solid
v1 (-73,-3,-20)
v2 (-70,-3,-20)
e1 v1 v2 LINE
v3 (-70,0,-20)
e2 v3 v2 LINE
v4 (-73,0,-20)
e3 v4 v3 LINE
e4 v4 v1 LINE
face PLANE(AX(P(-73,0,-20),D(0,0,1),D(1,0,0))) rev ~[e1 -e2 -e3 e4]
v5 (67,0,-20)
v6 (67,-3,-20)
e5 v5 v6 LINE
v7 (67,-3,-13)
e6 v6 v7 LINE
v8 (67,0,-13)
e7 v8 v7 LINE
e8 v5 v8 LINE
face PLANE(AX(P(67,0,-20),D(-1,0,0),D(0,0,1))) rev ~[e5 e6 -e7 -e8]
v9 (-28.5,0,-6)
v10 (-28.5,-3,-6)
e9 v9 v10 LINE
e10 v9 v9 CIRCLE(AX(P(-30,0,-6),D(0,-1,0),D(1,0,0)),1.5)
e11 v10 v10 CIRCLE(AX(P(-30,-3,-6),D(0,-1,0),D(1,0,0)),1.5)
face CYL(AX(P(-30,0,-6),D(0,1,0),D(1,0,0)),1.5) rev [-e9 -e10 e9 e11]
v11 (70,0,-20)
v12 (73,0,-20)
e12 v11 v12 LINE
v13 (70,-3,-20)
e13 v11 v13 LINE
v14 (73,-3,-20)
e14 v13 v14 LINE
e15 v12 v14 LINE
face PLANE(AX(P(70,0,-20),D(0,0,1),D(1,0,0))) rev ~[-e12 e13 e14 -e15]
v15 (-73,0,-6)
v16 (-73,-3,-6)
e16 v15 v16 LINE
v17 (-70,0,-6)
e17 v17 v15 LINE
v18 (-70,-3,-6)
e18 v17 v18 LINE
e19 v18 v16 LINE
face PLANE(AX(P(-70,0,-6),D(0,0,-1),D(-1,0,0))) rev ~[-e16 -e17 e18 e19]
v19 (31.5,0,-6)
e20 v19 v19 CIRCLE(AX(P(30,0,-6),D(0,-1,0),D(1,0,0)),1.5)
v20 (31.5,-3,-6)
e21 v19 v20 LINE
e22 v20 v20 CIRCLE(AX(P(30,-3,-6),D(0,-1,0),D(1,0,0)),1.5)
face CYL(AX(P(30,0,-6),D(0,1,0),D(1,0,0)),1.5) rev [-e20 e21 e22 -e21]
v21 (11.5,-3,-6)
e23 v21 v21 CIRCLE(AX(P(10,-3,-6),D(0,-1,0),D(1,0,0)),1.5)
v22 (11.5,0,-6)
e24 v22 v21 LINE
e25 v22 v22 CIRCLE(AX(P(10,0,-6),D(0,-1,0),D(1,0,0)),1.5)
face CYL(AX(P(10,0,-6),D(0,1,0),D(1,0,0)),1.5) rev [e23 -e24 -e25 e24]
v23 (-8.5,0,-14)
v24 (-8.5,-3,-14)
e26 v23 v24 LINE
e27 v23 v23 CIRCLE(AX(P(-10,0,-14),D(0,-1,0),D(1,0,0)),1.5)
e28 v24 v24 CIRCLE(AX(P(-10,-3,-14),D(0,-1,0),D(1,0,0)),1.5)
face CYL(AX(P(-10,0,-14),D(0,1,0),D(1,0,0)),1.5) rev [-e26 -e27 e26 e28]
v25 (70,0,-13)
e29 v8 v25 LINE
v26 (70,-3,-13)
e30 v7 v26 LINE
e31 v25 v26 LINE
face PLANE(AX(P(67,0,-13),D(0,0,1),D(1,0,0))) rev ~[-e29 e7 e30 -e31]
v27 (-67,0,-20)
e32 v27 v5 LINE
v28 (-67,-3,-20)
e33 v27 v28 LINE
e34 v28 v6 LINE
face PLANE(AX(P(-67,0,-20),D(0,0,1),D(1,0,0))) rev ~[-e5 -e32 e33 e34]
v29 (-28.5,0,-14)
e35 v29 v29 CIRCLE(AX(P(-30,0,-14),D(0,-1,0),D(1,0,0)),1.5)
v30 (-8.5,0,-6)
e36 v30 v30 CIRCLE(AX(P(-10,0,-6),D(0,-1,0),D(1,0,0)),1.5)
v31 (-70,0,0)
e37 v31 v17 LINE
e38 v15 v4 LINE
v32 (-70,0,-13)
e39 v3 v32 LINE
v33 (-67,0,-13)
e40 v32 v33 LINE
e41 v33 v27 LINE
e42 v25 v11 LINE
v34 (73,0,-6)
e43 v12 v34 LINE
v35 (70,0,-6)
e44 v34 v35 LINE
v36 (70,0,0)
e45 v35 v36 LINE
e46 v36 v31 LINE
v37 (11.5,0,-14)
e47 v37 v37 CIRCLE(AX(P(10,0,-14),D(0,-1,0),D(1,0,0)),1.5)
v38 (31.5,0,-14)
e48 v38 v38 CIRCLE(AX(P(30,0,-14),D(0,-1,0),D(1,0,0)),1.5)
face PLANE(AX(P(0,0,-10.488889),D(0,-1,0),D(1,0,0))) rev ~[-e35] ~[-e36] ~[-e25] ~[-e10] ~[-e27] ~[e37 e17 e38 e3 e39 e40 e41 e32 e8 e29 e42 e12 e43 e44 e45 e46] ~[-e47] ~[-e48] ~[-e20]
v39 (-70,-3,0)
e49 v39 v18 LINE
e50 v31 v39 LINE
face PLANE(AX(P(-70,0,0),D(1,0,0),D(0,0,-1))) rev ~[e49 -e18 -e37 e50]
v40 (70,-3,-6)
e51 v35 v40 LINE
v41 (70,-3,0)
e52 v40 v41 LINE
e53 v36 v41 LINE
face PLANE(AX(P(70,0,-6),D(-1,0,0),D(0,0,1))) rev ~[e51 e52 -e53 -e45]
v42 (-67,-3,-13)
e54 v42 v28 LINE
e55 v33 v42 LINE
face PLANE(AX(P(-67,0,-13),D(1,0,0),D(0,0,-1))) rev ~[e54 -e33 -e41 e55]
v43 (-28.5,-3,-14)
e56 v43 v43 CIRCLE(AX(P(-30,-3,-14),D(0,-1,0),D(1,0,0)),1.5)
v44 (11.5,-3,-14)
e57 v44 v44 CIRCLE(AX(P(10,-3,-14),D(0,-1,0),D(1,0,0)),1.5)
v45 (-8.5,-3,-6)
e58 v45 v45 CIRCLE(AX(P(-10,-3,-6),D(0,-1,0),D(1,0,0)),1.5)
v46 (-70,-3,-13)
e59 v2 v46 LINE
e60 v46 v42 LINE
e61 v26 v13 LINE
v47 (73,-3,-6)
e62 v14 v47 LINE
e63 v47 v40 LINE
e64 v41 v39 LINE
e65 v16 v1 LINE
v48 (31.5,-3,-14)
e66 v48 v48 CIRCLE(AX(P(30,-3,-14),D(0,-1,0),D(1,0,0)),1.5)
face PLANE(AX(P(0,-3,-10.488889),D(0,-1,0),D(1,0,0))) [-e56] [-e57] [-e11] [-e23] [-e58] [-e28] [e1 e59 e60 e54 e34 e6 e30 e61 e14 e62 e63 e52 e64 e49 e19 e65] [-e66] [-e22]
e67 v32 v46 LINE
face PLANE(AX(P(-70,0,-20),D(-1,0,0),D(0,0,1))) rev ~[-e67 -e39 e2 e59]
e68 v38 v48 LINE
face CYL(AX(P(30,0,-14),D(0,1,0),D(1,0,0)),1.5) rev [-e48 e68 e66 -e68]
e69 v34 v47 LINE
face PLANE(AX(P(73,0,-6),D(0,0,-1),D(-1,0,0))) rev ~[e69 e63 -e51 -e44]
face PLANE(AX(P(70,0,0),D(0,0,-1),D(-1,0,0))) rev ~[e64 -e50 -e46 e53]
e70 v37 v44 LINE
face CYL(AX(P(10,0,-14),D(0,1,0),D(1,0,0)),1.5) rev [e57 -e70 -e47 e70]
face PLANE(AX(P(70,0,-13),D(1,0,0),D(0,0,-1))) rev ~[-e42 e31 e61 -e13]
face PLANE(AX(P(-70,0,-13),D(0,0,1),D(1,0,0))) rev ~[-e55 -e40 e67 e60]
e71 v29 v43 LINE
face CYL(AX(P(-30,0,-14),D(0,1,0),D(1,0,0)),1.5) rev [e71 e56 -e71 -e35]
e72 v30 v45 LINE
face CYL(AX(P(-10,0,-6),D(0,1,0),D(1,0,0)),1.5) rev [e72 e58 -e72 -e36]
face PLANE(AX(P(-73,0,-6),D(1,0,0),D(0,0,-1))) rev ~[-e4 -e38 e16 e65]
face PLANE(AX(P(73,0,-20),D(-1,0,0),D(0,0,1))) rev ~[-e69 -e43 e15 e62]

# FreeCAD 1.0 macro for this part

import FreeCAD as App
import Part
import Sketcher

V = App.Vector

doc = App.newDocument("Part")
params = doc.addObject("Spreadsheet::Sheet", "Params")
for row, (alias, value) in enumerate([
    ("sketch1_diameter", "3 mm"),
    ("sketch1_width", "140 mm"),
    ("sketch1_width2", "3 mm"),
    ("sketch1_height", "6 mm"),
    ("sketch1_height2", "14 mm"),
    ("pad1_length", "3 mm"),
], start=1):
    params.set(f"A{row}", alias)
    params.set(f"B{row}", "=" + value)
    params.setAlias(f"B{row}", alias)

body = doc.addObject("PartDesign::Body", "Body")

# Sketch on XZ plane
sketch1 = body.newObject("Sketcher::SketchObject", "Sketch")
sketch1.AttachmentSupport = (doc.getObject("XZ_Plane"), [""])
sketch1.MapMode = "FlatFace"
sketch1.addGeometry(Part.LineSegment(V(70, 0, 0), V(-70, 0, 0)), False)
sketch1.addGeometry(Part.LineSegment(V(-70, 0, 0), V(-70, -6, 0)), False)
sketch1.addGeometry(Part.LineSegment(V(-70, -6, 0), V(-73, -6, 0)), False)
sketch1.addGeometry(Part.LineSegment(V(-73, -6, 0), V(-73, -20, 0)), False)
sketch1.addGeometry(Part.LineSegment(V(-73, -20, 0), V(-70, -20, 0)), False)
sketch1.addGeometry(Part.LineSegment(V(-70, -20, 0), V(-70, -13, 0)), False)
sketch1.addGeometry(Part.LineSegment(V(-70, -13, 0), V(-67, -13, 0)), False)
sketch1.addGeometry(Part.LineSegment(V(-67, -13, 0), V(-67, -20, 0)), False)
sketch1.addGeometry(Part.LineSegment(V(-67, -20, 0), V(67, -20, 0)), False)
sketch1.addGeometry(Part.LineSegment(V(67, -20, 0), V(67, -13, 0)), False)
sketch1.addGeometry(Part.LineSegment(V(67, -13, 0), V(70, -13, 0)), False)
sketch1.addGeometry(Part.LineSegment(V(70, -13, 0), V(70, -20, 0)), False)
sketch1.addGeometry(Part.LineSegment(V(70, -20, 0), V(73, -20, 0)), False)
sketch1.addGeometry(Part.LineSegment(V(73, -20, 0), V(73, -6, 0)), False)
sketch1.addGeometry(Part.LineSegment(V(73, -6, 0), V(70, -6, 0)), False)
sketch1.addGeometry(Part.LineSegment(V(70, -6, 0), V(70, 0, 0)), False)
sketch1.addGeometry(Part.Circle(V(-30, -14, 0), V(0, 0, 1), 1.5), False)
sketch1.addGeometry(Part.Circle(V(-10, -14, 0), V(0, 0, 1), 1.5), False)
sketch1.addGeometry(Part.Circle(V(10, -14, 0), V(0, 0, 1), 1.5), False)
sketch1.addGeometry(Part.Circle(V(30, -14, 0), V(0, 0, 1), 1.5), False)
sketch1.addGeometry(Part.Circle(V(-30, -6, 0), V(0, 0, 1), 1.5), False)
sketch1.addGeometry(Part.Circle(V(-10, -6, 0), V(0, 0, 1), 1.5), False)
sketch1.addGeometry(Part.Circle(V(10, -6, 0), V(0, 0, 1), 1.5), False)
sketch1.addGeometry(Part.Circle(V(30, -6, 0), V(0, 0, 1), 1.5), False)
sketch1.addConstraint(Sketcher.Constraint("Coincident", 0, 2, 1, 1))
sketch1.addConstraint(Sketcher.Constraint("Coincident", 1, 2, 2, 1))
sketch1.addConstraint(Sketcher.Constraint("Coincident", 2, 2, 3, 1))
sketch1.addConstraint(Sketcher.Constraint("Coincident", 3, 2, 4, 1))
sketch1.addConstraint(Sketcher.Constraint("Coincident", 4, 2, 5, 1))
sketch1.addConstraint(Sketcher.Constraint("Coincident", 5, 2, 6, 1))
sketch1.addConstraint(Sketcher.Constraint("Coincident", 6, 2, 7, 1))
sketch1.addConstraint(Sketcher.Constraint("Coincident", 7, 2, 8, 1))
sketch1.addConstraint(Sketcher.Constraint("Coincident", 8, 2, 9, 1))
sketch1.addConstraint(Sketcher.Constraint("Coincident", 9, 2, 10, 1))
sketch1.addConstraint(Sketcher.Constraint("Coincident", 10, 2, 11, 1))
sketch1.addConstraint(Sketcher.Constraint("Coincident", 11, 2, 12, 1))
sketch1.addConstraint(Sketcher.Constraint("Coincident", 12, 2, 13, 1))
sketch1.addConstraint(Sketcher.Constraint("Coincident", 13, 2, 14, 1))
sketch1.addConstraint(Sketcher.Constraint("Coincident", 14, 2, 15, 1))
sketch1.addConstraint(Sketcher.Constraint("Coincident", 15, 2, 0, 1))
sketch1.addConstraint(Sketcher.Constraint("Horizontal", 0))
sketch1.addConstraint(Sketcher.Constraint("Vertical", 1))
sketch1.addConstraint(Sketcher.Constraint("Horizontal", 2))
sketch1.addConstraint(Sketcher.Constraint("Vertical", 3))
sketch1.addConstraint(Sketcher.Constraint("Horizontal", 4))
sketch1.addConstraint(Sketcher.Constraint("Vertical", 5))
sketch1.addConstraint(Sketcher.Constraint("Horizontal", 6))
sketch1.addConstraint(Sketcher.Constraint("Vertical", 7))
sketch1.addConstraint(Sketcher.Constraint("Horizontal", 8))
sketch1.addConstraint(Sketcher.Constraint("Vertical", 9))
sketch1.addConstraint(Sketcher.Constraint("Horizontal", 10))
sketch1.addConstraint(Sketcher.Constraint("Vertical", 11))
sketch1.addConstraint(Sketcher.Constraint("Horizontal", 12))
sketch1.addConstraint(Sketcher.Constraint("Vertical", 13))
sketch1.addConstraint(Sketcher.Constraint("Horizontal", 14))
sketch1.addConstraint(Sketcher.Constraint("Vertical", 15))
sketch1.addConstraint(Sketcher.Constraint("Equal", 16, 17))
sketch1.addConstraint(Sketcher.Constraint("Equal", 17, 18))
sketch1.addConstraint(Sketcher.Constraint("Equal", 18, 19))
sketch1.addConstraint(Sketcher.Constraint("Equal", 19, 20))
sketch1.addConstraint(Sketcher.Constraint("Equal", 20, 21))
sketch1.addConstraint(Sketcher.Constraint("Equal", 21, 22))
sketch1.addConstraint(Sketcher.Constraint("Equal", 22, 23))
sketch1.addConstraint(Sketcher.Constraint("Symmetric", 0, 2, 15, 2, -1, 1))
sketch1.addConstraint(Sketcher.Constraint("Symmetric", 17, 3, 18, 3, -2))
sketch1.addConstraint(Sketcher.Constraint("Symmetric", 16, 3, 19, 3, -2))
sketch1.addConstraint(Sketcher.Constraint("Symmetric", 21, 3, 22, 3, -2))
sketch1.addConstraint(Sketcher.Constraint("Symmetric", 20, 3, 23, 3, -2))
sketch1.addConstraint(Sketcher.Constraint("Symmetric", 6, 2, 9, 2, -2))
sketch1.addConstraint(Sketcher.Constraint("Symmetric", 4, 2, 11, 2, -2))
sketch1.addConstraint(Sketcher.Constraint("Symmetric", 2, 2, 13, 2, -2))
sketch1.addConstraint(Sketcher.Constraint("Horizontal", 16, 3, 17, 3))
sketch1.addConstraint(Sketcher.Constraint("Horizontal", 20, 3, 21, 3))
sketch1.addConstraint(Sketcher.Constraint("Horizontal", 23, 3, 1, 2))
sketch1.addConstraint(Sketcher.Constraint("Horizontal", 4, 2, 7, 2))
sketch1.addConstraint(Sketcher.Constraint("Vertical", 16, 3, 20, 3))
sketch1.addConstraint(Sketcher.Constraint("Vertical", 17, 3, 21, 3))
sketch1.addConstraint(Sketcher.Constraint("Vertical", 1, 2, 4, 2))
sketch1.addConstraint(Sketcher.Constraint("Equal", 4, 6))
sketch1.addConstraint(Sketcher.Constraint("Diameter", 16, 3.0))
sketch1.addConstraint(Sketcher.Constraint("DistanceX", 0, 2, 0, 1, 140.0))
sketch1.addConstraint(Sketcher.Constraint("DistanceX", 2, 2, 2, 1, 3.0))
sketch1.addConstraint(Sketcher.Constraint("DistanceY", 1, 2, 1, 1, 6.0))
sketch1.addConstraint(Sketcher.Constraint("DistanceY", 3, 2, 3, 1, 14.0))
sketch1.addConstraint(Sketcher.Constraint("DistanceY", 5, 1, 5, 2, 7.0))
sketch1.addConstraint(Sketcher.Constraint("DistanceX", 16, 3, -1, 1, 30.0))
sketch1.addConstraint(Sketcher.Constraint("DistanceY", 16, 3, -1, 1, 14.0))
sketch1.addConstraint(Sketcher.Constraint("DistanceX", 17, 3, -1, 1, 10.0))
sketch1.setExpression("Constraints[55]", "Params.sketch1_diameter")
sketch1.setExpression("Constraints[56]", "Params.sketch1_width")
sketch1.setExpression("Constraints[57]", "Params.sketch1_width2")
sketch1.setExpression("Constraints[58]", "Params.sketch1_height")
sketch1.setExpression("Constraints[59]", "Params.sketch1_height2")
pad1 = body.newObject("PartDesign::Pad", "Pad")
pad1.Profile = sketch1
pad1.setExpression("Length", "Params.pad1_length")

doc.recompute()
